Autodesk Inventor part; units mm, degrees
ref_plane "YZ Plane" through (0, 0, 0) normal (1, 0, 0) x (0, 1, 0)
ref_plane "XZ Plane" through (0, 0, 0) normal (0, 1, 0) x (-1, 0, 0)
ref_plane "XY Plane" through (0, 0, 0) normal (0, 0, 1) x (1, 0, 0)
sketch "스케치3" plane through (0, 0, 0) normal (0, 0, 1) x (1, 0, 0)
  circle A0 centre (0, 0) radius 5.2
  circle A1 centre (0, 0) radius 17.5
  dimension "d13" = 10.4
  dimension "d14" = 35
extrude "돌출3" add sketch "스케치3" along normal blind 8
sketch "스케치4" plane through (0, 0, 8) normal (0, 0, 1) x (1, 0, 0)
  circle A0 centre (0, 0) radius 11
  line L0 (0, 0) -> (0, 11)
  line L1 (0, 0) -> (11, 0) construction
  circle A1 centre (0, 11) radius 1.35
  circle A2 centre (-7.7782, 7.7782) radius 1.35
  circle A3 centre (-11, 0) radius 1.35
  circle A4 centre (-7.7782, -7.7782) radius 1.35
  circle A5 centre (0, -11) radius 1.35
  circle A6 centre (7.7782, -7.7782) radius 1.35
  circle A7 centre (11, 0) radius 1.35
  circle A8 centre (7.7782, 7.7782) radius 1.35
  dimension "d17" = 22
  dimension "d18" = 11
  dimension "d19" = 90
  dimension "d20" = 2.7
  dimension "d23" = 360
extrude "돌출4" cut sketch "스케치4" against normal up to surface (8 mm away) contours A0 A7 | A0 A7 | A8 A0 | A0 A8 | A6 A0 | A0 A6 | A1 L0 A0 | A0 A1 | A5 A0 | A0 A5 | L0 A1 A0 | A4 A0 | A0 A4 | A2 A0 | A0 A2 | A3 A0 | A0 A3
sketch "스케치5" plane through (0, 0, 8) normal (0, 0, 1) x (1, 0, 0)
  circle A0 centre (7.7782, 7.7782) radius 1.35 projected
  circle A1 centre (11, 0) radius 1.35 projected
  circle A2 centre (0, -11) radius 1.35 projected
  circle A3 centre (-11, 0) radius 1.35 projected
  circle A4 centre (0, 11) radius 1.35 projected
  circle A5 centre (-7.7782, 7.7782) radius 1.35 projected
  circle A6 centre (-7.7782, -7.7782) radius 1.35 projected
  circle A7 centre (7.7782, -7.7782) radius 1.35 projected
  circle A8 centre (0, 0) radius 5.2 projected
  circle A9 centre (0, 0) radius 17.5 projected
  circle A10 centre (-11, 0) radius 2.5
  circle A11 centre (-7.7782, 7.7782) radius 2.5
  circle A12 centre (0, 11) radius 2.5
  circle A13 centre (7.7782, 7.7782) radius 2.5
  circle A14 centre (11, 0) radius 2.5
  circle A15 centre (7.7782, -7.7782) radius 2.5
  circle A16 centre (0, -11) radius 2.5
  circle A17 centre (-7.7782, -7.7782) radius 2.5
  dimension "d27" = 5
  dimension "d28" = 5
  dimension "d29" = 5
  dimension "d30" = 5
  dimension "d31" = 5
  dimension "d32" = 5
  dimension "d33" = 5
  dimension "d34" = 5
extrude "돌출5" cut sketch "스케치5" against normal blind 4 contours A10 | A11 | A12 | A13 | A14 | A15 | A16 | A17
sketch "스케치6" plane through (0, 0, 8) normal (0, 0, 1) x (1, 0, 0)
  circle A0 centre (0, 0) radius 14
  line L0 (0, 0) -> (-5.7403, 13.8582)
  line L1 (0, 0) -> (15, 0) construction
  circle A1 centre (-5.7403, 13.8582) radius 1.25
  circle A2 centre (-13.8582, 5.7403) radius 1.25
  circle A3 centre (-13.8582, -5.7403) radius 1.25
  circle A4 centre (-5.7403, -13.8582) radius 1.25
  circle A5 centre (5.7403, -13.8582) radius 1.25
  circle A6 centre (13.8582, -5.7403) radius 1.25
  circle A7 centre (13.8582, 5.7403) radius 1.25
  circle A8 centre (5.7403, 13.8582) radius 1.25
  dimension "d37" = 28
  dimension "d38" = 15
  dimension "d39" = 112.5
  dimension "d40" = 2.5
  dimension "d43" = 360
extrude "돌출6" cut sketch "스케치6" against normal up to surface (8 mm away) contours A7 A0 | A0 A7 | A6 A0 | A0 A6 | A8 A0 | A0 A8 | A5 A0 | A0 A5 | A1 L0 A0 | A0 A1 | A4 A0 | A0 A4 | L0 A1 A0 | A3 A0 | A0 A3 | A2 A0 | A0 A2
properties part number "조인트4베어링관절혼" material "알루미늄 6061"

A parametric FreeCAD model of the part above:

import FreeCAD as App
import Part
import Sketcher
from FreeCAD import Vector

doc = App.newDocument("Part")
body = doc.addObject("PartDesign::Body", "Body")

# Sketch on XY plane
sketch1 = body.newObject("Sketcher::SketchObject", "Sketch")
sketch1.AttachmentSupport = (doc.getObject("XY_Plane"), [""])
sketch1.MapMode = "FlatFace"
sketch1.addGeometry(Part.Circle(Vector(0, 0, 0), Vector(0, 0, 1), 18), False)
sketch1.addGeometry(Part.Circle(Vector(0, 0, 0), Vector(0, 0, 1), 5), False)
sketch1.addConstraint(Sketcher.Constraint("Coincident", 0, 3, -1, 1))
sketch1.addConstraint(Sketcher.Constraint("Coincident", 1, 3, -1, 1))
sketch1.addConstraint(Sketcher.Constraint("Diameter", 0, 35.0))
sketch1.addConstraint(Sketcher.Constraint("Diameter", 1, 10.4))
pad1 = body.newObject("PartDesign::Pad", "Pad")
pad1.Profile = sketch1
pad1.Length = 8

# Sketch on XY plane
sketch2 = body.newObject("Sketcher::SketchObject", "Sketch001")
sketch2.AttachmentSupport = (doc.getObject("XY_Plane"), [""])
sketch2.MapMode = "FlatFace"
sketch2.AttachmentOffset = App.Placement(Vector(0, 0, 8), App.Rotation())
sketch2.addGeometry(Part.Circle(Vector(11, 0, 0), Vector(0, 0, 1), 1.4), False)
sketch2.addGeometry(Part.Circle(Vector(7.8, 7.8, 0), Vector(0, 0, 1), 1.4), False)
sketch2.addGeometry(Part.Circle(Vector(7.8, -7.8, 0), Vector(0, 0, 1), 1.4), False)
sketch2.addGeometry(Part.Circle(Vector(0, 11, 0), Vector(0, 0, 1), 1.4), False)
sketch2.addGeometry(Part.Circle(Vector(0, -11, 0), Vector(0, 0, 1), 1.4), False)
sketch2.addGeometry(Part.Circle(Vector(-7.8, -7.8, 0), Vector(0, 0, 1), 1.4), False)
sketch2.addGeometry(Part.Circle(Vector(-7.8, 7.8, 0), Vector(0, 0, 1), 1.4), False)
sketch2.addGeometry(Part.Circle(Vector(-11, 0, 0), Vector(0, 0, 1), 1.4), False)
sketch2.addConstraint(Sketcher.Constraint("Equal", 0, 1))
sketch2.addConstraint(Sketcher.Constraint("Equal", 1, 2))
sketch2.addConstraint(Sketcher.Constraint("Equal", 2, 3))
sketch2.addConstraint(Sketcher.Constraint("Equal", 3, 4))
sketch2.addConstraint(Sketcher.Constraint("Equal", 4, 5))
sketch2.addConstraint(Sketcher.Constraint("Equal", 5, 6))
sketch2.addConstraint(Sketcher.Constraint("Equal", 6, 7))
sketch2.addConstraint(Sketcher.Constraint("Symmetric", 3, 3, 4, 3, -1, 1))
sketch2.addConstraint(Sketcher.Constraint("Symmetric", 1, 3, 5, 3, -1, 1))
sketch2.addConstraint(Sketcher.Constraint("Symmetric", 2, 3, 6, 3, -1, 1))
sketch2.addConstraint(Sketcher.Constraint("Symmetric", 0, 3, 7, 3, -1, 1))
sketch2.addConstraint(Sketcher.Constraint("Symmetric", 2, 3, 5, 3, -2))
sketch2.addConstraint(Sketcher.Constraint("PointOnObject", 0, 3, -1))
sketch2.addConstraint(Sketcher.Constraint("PointOnObject", 3, 3, -2))
sketch2.addConstraint(Sketcher.Constraint("Diameter", 0, 2.7))
sketch2.addConstraint(Sketcher.Constraint("DistanceX", -1, 1, 0, 3, 11.0))
sketch2.addConstraint(Sketcher.Constraint("DistanceY", -1, 1, 3, 3, 11.0))
sketch2.addConstraint(Sketcher.Constraint("DistanceX", -1, 1, 1, 3, 7.7782))
sketch2.addConstraint(Sketcher.Constraint("DistanceY", -1, 1, 1, 3, 7.7782))
pocket1 = body.newObject("PartDesign::Pocket", "Pocket")
pocket1.Profile = sketch2
pocket1.Length = 8

# Sketch on XY plane
sketch3 = body.newObject("Sketcher::SketchObject", "Sketch002")
sketch3.AttachmentSupport = (doc.getObject("XY_Plane"), [""])
sketch3.MapMode = "FlatFace"
sketch3.AttachmentOffset = App.Placement(Vector(0, 0, 8), App.Rotation())
sketch3.addGeometry(Part.Circle(Vector(-11, 0, 0), Vector(0, 0, 1), 2.5), False)
sketch3.addGeometry(Part.Circle(Vector(-11, 0, 0), Vector(0, 0, 1), 1.4), False)
sketch3.addGeometry(Part.Circle(Vector(-7.8, 7.8, 0), Vector(0, 0, 1), 2.5), False)
sketch3.addGeometry(Part.Circle(Vector(-7.8, 7.8, 0), Vector(0, 0, 1), 1.4), False)
sketch3.addGeometry(Part.Circle(Vector(0, 11, 0), Vector(0, 0, 1), 2.5), False)
sketch3.addGeometry(Part.Circle(Vector(0, 11, 0), Vector(0, 0, 1), 1.4), False)
sketch3.addGeometry(Part.Circle(Vector(7.8, 7.8, 0), Vector(0, 0, 1), 2.5), False)
sketch3.addGeometry(Part.Circle(Vector(7.8, 7.8, 0), Vector(0, 0, 1), 1.4), False)
sketch3.addGeometry(Part.Circle(Vector(11, 0, 0), Vector(0, 0, 1), 2.5), False)
sketch3.addGeometry(Part.Circle(Vector(11, 0, 0), Vector(0, 0, 1), 1.4), False)
sketch3.addGeometry(Part.Circle(Vector(7.8, -7.8, 0), Vector(0, 0, 1), 2.5), False)
sketch3.addGeometry(Part.Circle(Vector(7.8, -7.8, 0), Vector(0, 0, 1), 1.4), False)
sketch3.addGeometry(Part.Circle(Vector(0, -11, 0), Vector(0, 0, 1), 2.5), False)
sketch3.addGeometry(Part.Circle(Vector(0, -11, 0), Vector(0, 0, 1), 1.4), False)
sketch3.addGeometry(Part.Circle(Vector(-7.8, -7.8, 0), Vector(0, 0, 1), 2.5), False)
sketch3.addGeometry(Part.Circle(Vector(-7.8, -7.8, 0), Vector(0, 0, 1), 1.4), False)
sketch3.addConstraint(Sketcher.Constraint("Coincident", 1, 3, 0, 3))
sketch3.addConstraint(Sketcher.Constraint("Coincident", 3, 3, 2, 3))
sketch3.addConstraint(Sketcher.Constraint("Coincident", 5, 3, 4, 3))
sketch3.addConstraint(Sketcher.Constraint("Coincident", 7, 3, 6, 3))
sketch3.addConstraint(Sketcher.Constraint("Coincident", 9, 3, 8, 3))
sketch3.addConstraint(Sketcher.Constraint("Coincident", 11, 3, 10, 3))
sketch3.addConstraint(Sketcher.Constraint("Coincident", 13, 3, 12, 3))
sketch3.addConstraint(Sketcher.Constraint("Coincident", 15, 3, 14, 3))
sketch3.addConstraint(Sketcher.Constraint("Equal", 0, 2))
sketch3.addConstraint(Sketcher.Constraint("Equal", 1, 3))
sketch3.addConstraint(Sketcher.Constraint("Equal", 2, 4))
sketch3.addConstraint(Sketcher.Constraint("Equal", 3, 5))
sketch3.addConstraint(Sketcher.Constraint("Equal", 4, 6))
sketch3.addConstraint(Sketcher.Constraint("Equal", 5, 7))
sketch3.addConstraint(Sketcher.Constraint("Equal", 6, 8))
sketch3.addConstraint(Sketcher.Constraint("Equal", 7, 9))
sketch3.addConstraint(Sketcher.Constraint("Equal", 8, 10))
sketch3.addConstraint(Sketcher.Constraint("Equal", 9, 11))
sketch3.addConstraint(Sketcher.Constraint("Equal", 10, 12))
sketch3.addConstraint(Sketcher.Constraint("Equal", 11, 13))
sketch3.addConstraint(Sketcher.Constraint("Equal", 12, 14))
sketch3.addConstraint(Sketcher.Constraint("Equal", 13, 15))
sketch3.addConstraint(Sketcher.Constraint("Symmetric", 0, 3, 8, 3, -1, 1))
sketch3.addConstraint(Sketcher.Constraint("Symmetric", 2, 3, 10, 3, -1, 1))
sketch3.addConstraint(Sketcher.Constraint("Symmetric", 4, 3, 12, 3, -1, 1))
sketch3.addConstraint(Sketcher.Constraint("Symmetric", 6, 3, 14, 3, -1, 1))
sketch3.addConstraint(Sketcher.Constraint("Symmetric", 2, 3, 6, 3, -2))
sketch3.addConstraint(Sketcher.Constraint("PointOnObject", 0, 3, -1))
sketch3.addConstraint(Sketcher.Constraint("PointOnObject", 4, 3, -2))
sketch3.addConstraint(Sketcher.Constraint("Diameter", 0, 5.0))
sketch3.addConstraint(Sketcher.Constraint("Diameter", 1, 2.7))
sketch3.addConstraint(Sketcher.Constraint("DistanceX", 0, 3, -1, 1, 11.0))
sketch3.addConstraint(Sketcher.Constraint("DistanceY", -1, 1, 4, 3, 11.0))
sketch3.addConstraint(Sketcher.Constraint("DistanceX", 2, 3, -1, 1, 7.7782))
sketch3.addConstraint(Sketcher.Constraint("DistanceY", -1, 1, 2, 3, 7.7782))
pocket2 = body.newObject("PartDesign::Pocket", "Pocket001")
pocket2.Profile = sketch3
pocket2.Length = 4

# Sketch on XY plane
sketch4 = body.newObject("Sketcher::SketchObject", "Sketch003")
sketch4.AttachmentSupport = (doc.getObject("XY_Plane"), [""])
sketch4.MapMode = "FlatFace"
sketch4.AttachmentOffset = App.Placement(Vector(0, 0, 8), App.Rotation())
sketch4.addGeometry(Part.Circle(Vector(13.9, 5.7, 0), Vector(0, 0, 1), 1.2), False)
sketch4.addGeometry(Part.Circle(Vector(13.9, -5.7, 0), Vector(0, 0, 1), 1.2), False)
sketch4.addGeometry(Part.Circle(Vector(5.7, 13.9, 0), Vector(0, 0, 1), 1.2), False)
sketch4.addGeometry(Part.Circle(Vector(5.7, -13.9, 0), Vector(0, 0, 1), 1.2), False)
sketch4.addGeometry(Part.Circle(Vector(-5.7, 13.9, 0), Vector(0, 0, 1), 1.2), False)
sketch4.addGeometry(Part.Circle(Vector(-5.7, -13.9, 0), Vector(0, 0, 1), 1.2), False)
sketch4.addGeometry(Part.Circle(Vector(-13.9, -5.7, 0), Vector(0, 0, 1), 1.2), False)
sketch4.addGeometry(Part.Circle(Vector(-13.9, 5.7, 0), Vector(0, 0, 1), 1.2), False)
sketch4.addConstraint(Sketcher.Constraint("Equal", 0, 1))
sketch4.addConstraint(Sketcher.Constraint("Equal", 1, 2))
sketch4.addConstraint(Sketcher.Constraint("Equal", 2, 3))
sketch4.addConstraint(Sketcher.Constraint("Equal", 3, 4))
sketch4.addConstraint(Sketcher.Constraint("Equal", 4, 5))
sketch4.addConstraint(Sketcher.Constraint("Equal", 5, 6))
sketch4.addConstraint(Sketcher.Constraint("Equal", 6, 7))
sketch4.addConstraint(Sketcher.Constraint("Symmetric", 3, 3, 4, 3, -1, 1))
sketch4.addConstraint(Sketcher.Constraint("Symmetric", 2, 3, 5, 3, -1, 1))
sketch4.addConstraint(Sketcher.Constraint("Symmetric", 0, 3, 6, 3, -1, 1))
sketch4.addConstraint(Sketcher.Constraint("Symmetric", 1, 3, 7, 3, -1, 1))
sketch4.addConstraint(Sketcher.Constraint("Symmetric", 2, 3, 4, 3, -2))
sketch4.addConstraint(Sketcher.Constraint("Symmetric", 1, 3, 6, 3, -2))
sketch4.addConstraint(Sketcher.Constraint("Diameter", 0, 2.5))
sketch4.addConstraint(Sketcher.Constraint("DistanceX", 2, 3, 0, 3, 8.118))
sketch4.addConstraint(Sketcher.Constraint("DistanceY", 0, 3, 2, 3, 8.118))
sketch4.addConstraint(Sketcher.Constraint("DistanceX", -1, 1, 0, 3, 13.8582))
sketch4.addConstraint(Sketcher.Constraint("DistanceY", -1, 1, 0, 3, 5.7403))
pocket3 = body.newObject("PartDesign::Pocket", "Pocket002")
pocket3.Profile = sketch4
pocket3.Length = 8

doc.recompute()
